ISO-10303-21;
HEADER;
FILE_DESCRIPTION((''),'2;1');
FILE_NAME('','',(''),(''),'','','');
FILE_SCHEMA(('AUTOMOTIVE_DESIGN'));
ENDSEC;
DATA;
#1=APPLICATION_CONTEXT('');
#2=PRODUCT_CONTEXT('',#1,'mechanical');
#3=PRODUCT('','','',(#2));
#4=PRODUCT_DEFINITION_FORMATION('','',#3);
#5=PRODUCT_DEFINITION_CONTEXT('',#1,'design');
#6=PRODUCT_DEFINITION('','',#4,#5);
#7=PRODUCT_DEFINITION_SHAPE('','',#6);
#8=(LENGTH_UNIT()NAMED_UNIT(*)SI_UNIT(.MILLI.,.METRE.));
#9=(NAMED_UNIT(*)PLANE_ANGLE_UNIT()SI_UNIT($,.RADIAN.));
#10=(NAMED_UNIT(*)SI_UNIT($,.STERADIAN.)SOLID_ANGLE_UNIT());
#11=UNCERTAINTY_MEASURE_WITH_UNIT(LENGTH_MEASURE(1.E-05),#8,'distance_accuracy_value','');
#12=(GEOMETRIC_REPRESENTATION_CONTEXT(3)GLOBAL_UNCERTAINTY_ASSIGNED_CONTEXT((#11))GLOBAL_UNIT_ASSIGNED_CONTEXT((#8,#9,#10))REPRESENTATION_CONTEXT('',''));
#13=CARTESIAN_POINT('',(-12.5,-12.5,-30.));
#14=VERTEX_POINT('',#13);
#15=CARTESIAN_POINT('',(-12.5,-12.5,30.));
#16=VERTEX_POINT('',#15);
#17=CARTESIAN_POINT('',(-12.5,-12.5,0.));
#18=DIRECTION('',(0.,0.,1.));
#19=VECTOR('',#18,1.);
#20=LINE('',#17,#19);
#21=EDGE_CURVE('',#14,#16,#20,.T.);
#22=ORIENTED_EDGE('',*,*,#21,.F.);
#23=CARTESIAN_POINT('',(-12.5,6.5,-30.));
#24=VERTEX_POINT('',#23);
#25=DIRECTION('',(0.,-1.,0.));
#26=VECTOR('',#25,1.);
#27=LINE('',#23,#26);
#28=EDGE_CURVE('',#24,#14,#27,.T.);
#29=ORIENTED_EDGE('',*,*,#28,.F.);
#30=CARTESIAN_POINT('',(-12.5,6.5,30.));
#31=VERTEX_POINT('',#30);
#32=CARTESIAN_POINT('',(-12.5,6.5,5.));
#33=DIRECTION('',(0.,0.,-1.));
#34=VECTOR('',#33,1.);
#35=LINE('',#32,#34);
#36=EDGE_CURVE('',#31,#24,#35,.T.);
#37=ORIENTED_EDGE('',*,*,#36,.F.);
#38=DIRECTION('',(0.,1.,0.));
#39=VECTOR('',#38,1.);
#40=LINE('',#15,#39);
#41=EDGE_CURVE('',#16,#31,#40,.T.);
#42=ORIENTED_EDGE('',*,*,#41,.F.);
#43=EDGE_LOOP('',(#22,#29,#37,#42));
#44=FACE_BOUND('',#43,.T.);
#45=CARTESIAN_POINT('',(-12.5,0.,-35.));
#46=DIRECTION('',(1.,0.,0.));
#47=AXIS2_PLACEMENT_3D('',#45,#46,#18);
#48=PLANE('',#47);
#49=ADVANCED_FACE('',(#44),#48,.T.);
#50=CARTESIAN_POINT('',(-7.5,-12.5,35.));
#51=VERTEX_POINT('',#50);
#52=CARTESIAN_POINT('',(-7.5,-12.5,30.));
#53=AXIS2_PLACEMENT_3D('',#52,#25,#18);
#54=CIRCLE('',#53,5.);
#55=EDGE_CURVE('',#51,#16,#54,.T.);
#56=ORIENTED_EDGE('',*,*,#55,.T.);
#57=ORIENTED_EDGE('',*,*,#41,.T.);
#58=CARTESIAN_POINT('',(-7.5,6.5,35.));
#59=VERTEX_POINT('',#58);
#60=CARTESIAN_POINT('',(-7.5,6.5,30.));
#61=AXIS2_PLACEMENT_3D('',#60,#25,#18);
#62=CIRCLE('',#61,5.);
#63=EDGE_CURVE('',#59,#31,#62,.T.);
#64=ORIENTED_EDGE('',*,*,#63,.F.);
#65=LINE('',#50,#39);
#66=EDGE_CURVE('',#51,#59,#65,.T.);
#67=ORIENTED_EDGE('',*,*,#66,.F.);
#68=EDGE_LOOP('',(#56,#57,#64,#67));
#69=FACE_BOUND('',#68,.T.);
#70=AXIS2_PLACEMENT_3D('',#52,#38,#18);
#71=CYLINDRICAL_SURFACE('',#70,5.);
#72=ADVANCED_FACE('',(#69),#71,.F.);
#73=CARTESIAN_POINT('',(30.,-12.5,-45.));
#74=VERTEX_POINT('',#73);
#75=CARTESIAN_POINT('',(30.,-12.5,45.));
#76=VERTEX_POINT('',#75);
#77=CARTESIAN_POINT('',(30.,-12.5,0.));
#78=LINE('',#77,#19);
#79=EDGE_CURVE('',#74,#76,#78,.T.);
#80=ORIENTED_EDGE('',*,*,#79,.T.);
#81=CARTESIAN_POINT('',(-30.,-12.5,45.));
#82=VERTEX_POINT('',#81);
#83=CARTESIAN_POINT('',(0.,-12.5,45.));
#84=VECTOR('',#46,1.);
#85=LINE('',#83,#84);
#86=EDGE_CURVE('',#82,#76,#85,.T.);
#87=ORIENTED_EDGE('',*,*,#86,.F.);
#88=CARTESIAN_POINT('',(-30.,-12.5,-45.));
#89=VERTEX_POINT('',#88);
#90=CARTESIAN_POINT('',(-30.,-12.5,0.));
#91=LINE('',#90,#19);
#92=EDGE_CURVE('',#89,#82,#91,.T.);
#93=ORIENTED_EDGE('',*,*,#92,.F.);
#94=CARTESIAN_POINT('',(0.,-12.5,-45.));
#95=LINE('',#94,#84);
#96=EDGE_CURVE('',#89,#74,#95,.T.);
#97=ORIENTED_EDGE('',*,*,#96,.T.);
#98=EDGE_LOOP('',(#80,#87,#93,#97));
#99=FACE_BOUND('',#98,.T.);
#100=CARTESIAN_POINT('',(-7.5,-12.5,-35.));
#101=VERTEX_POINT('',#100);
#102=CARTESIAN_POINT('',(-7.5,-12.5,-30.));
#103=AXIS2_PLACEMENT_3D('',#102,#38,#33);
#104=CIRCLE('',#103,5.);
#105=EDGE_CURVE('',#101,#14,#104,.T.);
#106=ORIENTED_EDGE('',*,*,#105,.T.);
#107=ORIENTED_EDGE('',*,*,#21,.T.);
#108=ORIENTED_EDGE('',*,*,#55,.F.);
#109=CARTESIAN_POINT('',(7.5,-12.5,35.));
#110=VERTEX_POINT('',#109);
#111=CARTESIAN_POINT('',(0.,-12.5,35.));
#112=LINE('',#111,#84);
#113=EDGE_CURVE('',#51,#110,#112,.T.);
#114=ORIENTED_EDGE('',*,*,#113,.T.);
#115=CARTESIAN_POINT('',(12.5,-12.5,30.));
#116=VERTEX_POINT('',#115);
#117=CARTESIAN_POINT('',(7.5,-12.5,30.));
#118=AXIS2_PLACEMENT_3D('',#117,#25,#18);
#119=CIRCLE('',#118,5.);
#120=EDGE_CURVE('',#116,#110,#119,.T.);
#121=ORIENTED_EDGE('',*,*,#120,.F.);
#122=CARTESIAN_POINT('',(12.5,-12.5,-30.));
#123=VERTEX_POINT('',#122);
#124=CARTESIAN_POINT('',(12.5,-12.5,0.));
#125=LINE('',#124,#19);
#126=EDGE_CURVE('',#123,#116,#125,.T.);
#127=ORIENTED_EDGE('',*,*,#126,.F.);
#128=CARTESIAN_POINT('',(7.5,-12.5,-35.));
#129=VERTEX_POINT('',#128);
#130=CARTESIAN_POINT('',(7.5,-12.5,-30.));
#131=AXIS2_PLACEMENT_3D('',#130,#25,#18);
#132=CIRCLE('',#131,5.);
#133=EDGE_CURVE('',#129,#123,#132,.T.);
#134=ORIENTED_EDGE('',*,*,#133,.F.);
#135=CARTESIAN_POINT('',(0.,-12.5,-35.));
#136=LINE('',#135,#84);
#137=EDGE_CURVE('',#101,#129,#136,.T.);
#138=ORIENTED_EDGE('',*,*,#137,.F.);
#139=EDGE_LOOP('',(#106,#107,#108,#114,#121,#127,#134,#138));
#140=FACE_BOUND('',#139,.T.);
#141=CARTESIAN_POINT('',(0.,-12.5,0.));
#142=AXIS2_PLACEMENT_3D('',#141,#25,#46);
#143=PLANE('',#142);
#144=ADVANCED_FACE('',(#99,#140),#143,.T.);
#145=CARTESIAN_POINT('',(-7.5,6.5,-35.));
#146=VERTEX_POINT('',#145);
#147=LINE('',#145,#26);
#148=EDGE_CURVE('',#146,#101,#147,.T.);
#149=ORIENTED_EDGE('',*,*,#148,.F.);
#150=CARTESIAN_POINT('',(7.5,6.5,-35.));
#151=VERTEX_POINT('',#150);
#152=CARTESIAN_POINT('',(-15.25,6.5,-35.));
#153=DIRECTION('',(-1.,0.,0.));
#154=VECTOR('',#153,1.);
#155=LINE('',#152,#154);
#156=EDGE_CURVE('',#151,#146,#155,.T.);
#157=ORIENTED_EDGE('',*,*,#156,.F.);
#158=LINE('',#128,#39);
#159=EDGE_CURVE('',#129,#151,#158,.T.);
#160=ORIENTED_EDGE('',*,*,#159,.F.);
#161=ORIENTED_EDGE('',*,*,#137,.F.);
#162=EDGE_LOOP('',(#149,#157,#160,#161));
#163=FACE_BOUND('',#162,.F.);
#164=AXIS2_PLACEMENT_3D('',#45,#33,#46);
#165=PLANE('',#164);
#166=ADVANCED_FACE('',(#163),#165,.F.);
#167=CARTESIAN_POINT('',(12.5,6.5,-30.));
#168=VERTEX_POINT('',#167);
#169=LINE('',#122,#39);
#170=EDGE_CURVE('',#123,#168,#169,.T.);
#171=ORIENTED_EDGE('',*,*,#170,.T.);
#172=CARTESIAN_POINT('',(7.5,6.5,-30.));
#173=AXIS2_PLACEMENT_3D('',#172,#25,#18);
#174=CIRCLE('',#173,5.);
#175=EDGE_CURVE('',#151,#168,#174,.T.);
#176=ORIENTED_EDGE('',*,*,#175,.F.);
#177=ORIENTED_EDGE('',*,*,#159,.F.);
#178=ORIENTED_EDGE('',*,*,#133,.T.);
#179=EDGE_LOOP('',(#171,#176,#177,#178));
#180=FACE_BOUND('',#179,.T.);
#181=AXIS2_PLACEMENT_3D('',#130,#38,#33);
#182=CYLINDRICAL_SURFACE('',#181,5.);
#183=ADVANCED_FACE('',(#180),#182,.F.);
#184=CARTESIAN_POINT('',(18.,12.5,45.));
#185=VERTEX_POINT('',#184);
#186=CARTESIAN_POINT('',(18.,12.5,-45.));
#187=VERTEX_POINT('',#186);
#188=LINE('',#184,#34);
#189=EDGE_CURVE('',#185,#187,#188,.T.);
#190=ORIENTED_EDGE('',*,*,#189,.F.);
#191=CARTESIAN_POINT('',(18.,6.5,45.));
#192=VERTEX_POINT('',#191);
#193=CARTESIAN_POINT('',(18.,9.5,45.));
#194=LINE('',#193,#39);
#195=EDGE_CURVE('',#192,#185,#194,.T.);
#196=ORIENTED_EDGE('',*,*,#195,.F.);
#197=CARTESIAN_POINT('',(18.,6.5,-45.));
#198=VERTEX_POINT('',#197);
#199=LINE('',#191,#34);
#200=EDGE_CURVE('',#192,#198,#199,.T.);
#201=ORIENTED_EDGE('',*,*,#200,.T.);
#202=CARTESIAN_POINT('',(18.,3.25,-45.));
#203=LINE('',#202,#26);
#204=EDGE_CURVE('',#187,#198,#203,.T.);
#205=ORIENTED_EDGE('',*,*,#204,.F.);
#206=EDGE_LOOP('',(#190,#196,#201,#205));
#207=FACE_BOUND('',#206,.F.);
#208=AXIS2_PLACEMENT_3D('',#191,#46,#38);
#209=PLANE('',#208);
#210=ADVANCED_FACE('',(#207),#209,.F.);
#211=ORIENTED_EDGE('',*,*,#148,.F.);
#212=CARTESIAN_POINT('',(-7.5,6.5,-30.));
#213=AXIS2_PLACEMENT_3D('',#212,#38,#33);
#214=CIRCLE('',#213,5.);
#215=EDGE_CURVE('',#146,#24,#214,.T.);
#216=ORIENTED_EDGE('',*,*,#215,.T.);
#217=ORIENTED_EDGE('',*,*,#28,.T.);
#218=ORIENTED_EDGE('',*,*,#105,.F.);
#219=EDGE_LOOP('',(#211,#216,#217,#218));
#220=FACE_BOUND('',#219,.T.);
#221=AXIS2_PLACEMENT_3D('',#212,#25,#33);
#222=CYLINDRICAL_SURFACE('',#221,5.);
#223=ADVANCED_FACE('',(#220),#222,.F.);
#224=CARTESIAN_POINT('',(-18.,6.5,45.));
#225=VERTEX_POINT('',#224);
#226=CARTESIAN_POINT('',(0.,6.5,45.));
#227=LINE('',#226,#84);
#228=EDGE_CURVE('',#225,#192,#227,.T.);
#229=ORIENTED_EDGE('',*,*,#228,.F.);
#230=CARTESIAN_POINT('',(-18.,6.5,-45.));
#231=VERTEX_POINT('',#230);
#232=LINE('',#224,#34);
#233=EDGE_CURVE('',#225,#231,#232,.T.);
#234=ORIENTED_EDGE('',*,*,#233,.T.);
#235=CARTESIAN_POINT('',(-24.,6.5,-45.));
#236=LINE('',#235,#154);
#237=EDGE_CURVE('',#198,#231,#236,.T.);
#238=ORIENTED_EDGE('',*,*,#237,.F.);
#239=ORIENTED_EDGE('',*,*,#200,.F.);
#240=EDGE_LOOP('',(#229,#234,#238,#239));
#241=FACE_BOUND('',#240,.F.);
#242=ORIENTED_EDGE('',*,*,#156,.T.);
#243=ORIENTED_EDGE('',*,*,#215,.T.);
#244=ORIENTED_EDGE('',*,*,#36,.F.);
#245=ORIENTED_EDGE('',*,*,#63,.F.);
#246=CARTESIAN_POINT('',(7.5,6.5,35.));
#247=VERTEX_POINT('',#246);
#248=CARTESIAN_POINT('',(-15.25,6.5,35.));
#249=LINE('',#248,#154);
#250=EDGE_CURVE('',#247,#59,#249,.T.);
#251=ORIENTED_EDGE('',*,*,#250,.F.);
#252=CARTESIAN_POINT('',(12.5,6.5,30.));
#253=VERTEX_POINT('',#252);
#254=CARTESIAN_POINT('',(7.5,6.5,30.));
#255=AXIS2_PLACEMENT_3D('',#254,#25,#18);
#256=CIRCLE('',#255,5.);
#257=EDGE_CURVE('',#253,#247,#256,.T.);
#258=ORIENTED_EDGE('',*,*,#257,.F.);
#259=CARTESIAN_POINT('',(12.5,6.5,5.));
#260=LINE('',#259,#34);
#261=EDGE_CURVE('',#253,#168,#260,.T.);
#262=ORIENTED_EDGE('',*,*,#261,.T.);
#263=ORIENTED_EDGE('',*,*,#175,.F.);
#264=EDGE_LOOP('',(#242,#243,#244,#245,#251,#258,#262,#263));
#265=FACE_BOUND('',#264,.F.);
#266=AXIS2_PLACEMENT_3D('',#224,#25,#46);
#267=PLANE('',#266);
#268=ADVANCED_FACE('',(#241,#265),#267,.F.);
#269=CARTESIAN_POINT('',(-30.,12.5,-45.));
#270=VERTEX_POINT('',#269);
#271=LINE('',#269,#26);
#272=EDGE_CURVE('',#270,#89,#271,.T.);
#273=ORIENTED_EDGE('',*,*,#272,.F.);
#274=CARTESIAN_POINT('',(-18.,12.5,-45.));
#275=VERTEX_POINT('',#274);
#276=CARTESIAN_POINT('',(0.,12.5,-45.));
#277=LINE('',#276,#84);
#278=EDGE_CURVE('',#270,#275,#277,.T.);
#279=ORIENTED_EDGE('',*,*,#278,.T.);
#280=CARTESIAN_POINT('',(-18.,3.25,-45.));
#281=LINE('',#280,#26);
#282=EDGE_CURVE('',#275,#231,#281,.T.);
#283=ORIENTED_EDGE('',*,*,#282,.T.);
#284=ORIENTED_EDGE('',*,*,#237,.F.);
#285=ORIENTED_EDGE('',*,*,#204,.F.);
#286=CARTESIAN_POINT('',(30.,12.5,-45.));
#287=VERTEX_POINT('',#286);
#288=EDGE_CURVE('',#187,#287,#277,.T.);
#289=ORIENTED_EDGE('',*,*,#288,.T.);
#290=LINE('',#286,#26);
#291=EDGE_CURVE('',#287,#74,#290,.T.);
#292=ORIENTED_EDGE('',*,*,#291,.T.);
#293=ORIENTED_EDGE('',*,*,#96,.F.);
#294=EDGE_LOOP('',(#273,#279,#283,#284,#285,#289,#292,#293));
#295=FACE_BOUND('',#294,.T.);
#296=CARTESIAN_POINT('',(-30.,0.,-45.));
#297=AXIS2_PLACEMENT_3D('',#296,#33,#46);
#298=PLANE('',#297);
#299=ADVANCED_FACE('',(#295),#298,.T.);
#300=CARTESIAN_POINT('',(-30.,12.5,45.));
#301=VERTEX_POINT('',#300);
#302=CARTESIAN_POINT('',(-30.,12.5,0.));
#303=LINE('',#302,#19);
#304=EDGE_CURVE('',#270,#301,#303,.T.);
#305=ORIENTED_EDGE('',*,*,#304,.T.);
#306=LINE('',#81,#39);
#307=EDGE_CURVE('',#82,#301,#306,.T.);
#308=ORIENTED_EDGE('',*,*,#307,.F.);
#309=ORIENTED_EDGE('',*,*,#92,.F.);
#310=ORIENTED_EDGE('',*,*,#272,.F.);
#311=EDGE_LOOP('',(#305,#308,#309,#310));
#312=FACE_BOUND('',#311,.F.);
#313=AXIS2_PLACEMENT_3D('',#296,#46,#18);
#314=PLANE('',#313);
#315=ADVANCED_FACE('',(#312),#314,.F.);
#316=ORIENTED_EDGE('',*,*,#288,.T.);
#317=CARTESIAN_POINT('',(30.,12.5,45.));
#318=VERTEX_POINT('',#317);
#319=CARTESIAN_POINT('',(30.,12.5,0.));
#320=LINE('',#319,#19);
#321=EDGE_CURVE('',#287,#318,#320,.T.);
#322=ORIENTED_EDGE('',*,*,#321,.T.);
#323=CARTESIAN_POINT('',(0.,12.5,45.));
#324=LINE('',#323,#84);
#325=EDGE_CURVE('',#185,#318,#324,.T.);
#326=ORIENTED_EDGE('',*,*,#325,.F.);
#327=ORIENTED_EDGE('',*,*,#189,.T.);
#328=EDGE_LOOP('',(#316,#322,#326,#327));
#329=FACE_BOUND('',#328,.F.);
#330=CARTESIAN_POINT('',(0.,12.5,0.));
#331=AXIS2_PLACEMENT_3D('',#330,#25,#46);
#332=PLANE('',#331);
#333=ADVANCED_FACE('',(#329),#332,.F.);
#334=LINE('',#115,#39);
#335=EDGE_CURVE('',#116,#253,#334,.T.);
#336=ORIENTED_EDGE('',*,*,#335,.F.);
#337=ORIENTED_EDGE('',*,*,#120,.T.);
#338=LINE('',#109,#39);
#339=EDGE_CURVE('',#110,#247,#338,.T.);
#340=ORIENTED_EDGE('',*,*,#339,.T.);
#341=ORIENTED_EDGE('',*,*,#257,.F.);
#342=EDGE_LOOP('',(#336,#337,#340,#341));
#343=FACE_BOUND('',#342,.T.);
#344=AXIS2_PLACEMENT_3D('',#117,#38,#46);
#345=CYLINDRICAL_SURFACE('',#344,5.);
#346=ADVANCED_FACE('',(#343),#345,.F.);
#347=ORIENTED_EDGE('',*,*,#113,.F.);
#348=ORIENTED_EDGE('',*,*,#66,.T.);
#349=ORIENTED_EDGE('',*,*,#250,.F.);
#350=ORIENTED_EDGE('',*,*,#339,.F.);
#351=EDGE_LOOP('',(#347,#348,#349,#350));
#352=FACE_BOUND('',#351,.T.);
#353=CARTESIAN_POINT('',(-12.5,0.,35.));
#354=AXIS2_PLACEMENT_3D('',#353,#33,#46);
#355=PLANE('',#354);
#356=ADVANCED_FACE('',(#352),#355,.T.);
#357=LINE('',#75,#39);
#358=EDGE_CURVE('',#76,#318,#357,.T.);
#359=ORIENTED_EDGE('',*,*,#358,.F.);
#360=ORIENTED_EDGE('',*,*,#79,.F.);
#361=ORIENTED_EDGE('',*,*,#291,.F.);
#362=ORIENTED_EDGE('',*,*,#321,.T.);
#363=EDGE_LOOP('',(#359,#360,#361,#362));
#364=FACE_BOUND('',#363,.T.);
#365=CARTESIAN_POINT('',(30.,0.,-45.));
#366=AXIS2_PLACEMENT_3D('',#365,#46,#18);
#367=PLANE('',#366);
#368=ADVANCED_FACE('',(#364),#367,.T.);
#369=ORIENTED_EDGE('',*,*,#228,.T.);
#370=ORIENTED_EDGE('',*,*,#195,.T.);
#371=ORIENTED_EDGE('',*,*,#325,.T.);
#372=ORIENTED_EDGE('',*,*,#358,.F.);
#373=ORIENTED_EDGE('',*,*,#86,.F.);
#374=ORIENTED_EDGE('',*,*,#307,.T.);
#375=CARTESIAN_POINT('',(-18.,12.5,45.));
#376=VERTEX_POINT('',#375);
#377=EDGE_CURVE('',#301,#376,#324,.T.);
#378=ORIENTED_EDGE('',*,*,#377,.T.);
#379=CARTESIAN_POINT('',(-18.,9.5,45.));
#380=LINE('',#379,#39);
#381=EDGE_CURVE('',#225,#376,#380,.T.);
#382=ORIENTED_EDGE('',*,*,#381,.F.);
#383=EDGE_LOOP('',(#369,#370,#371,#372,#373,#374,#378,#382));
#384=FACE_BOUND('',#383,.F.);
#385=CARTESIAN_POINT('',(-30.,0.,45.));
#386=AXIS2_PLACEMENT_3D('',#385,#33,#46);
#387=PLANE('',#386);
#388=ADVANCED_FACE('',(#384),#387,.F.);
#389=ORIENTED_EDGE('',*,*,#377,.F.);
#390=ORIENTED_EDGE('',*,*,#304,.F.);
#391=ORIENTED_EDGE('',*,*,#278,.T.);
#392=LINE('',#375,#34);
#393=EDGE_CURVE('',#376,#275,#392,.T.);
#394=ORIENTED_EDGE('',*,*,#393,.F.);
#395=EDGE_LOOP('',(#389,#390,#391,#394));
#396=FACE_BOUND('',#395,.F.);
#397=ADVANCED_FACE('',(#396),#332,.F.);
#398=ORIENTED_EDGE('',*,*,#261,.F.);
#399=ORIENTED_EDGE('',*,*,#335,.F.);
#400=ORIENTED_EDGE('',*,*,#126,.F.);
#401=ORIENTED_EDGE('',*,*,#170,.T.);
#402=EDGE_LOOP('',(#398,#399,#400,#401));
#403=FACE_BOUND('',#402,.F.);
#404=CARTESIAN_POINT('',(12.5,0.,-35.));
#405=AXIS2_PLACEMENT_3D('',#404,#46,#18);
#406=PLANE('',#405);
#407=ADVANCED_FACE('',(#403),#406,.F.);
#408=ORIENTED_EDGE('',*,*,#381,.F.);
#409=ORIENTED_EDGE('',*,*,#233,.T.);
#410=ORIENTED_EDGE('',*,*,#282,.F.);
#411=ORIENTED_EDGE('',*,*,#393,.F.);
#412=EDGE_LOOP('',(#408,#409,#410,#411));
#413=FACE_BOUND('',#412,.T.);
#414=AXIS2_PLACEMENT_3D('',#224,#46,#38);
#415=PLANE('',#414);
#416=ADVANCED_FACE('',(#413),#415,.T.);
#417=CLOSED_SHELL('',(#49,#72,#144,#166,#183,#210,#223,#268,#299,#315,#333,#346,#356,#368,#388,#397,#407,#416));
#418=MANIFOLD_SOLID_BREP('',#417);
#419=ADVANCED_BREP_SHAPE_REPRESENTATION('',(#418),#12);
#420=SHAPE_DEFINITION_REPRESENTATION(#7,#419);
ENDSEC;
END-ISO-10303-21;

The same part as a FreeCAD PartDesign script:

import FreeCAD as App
import Part
import Sketcher


def edges_at(feature, points):
    """Names of the edges that pass closest to the given points."""
    edges = feature.Shape.Edges
    near = lambda p: min(range(len(edges)), key=lambda i: edges[i].distToShape(Part.Vertex(*p))[0])
    return sorted({f"Edge{near(p) + 1}" for p in points})


def add_polygon(sketch, points):
    """Adds a closed chain of lines whose ends are joined by coincident constraints."""
    first, n = sketch.GeometryCount, len(points)
    for a, b in zip(points, points[1:] + points[:1]):
        sketch.addGeometry(Part.LineSegment(App.Vector(*a, 0), App.Vector(*b, 0)), False)
    for i in range(n):
        sketch.addConstraint(Sketcher.Constraint("Coincident", first + i, 2, first + (i + 1) % n, 1))

doc = App.newDocument("Part")
body = doc.addObject("PartDesign::Body", "Body")

sketch1 = body.newObject("Sketcher::SketchObject", "Sketch")
sketch1.AttachmentSupport = (doc.getObject("XZ_Plane"), [""])
sketch1.MapMode = "FlatFace"
add_polygon(sketch1, [(-30, 45), (-30, -45), (30, -45), (30, 45)])
add_polygon(sketch1, [(12, -35), (-12, -35), (-12, 35), (12, 35)])
sketch1.addConstraint(Sketcher.Constraint("Vertical", 0))
sketch1.addConstraint(Sketcher.Constraint("Horizontal", 1))
sketch1.addConstraint(Sketcher.Constraint("Vertical", 2))
sketch1.addConstraint(Sketcher.Constraint("Horizontal", 3))
sketch1.addConstraint(Sketcher.Constraint("Horizontal", 4))
sketch1.addConstraint(Sketcher.Constraint("Vertical", 5))
sketch1.addConstraint(Sketcher.Constraint("Horizontal", 6))
sketch1.addConstraint(Sketcher.Constraint("Vertical", 7))
sketch1.addConstraint(Sketcher.Constraint("Symmetric", 0, 2, 2, 2, -1, 1))
sketch1.addConstraint(Sketcher.Constraint("Symmetric", 4, 2, 6, 2, -1, 1))
sketch1.addConstraint(Sketcher.Constraint("DistanceX", 1, 1, 1, 2, 60.0))
sketch1.addConstraint(Sketcher.Constraint("DistanceX", 4, 2, 4, 1, 25.0))
sketch1.addConstraint(Sketcher.Constraint("DistanceY", 0, 2, 0, 1, 90.0))
sketch1.addConstraint(Sketcher.Constraint("DistanceY", 5, 1, 5, 2, 70.0))
pad1 = body.newObject("PartDesign::Pad", "Pad")
pad1.Profile = sketch1
pad1.Length = 25
pad1.Midplane = True

sketch2 = body.newObject("Sketcher::SketchObject", "Sketch001")
sketch2.AttachmentSupport = (doc.getObject("XY_Plane"), [""])
sketch2.MapMode = "FlatFace"
sketch2.AttachmentOffset = App.Placement(App.Vector(0, 0, 45), App.Rotation())
add_polygon(sketch2, [(-18, 12), (-18, 6), (18, 6), (18, 12)])
sketch2.addConstraint(Sketcher.Constraint("Vertical", 0))
sketch2.addConstraint(Sketcher.Constraint("Horizontal", 1))
sketch2.addConstraint(Sketcher.Constraint("Vertical", 2))
sketch2.addConstraint(Sketcher.Constraint("Horizontal", 3))
sketch2.addConstraint(Sketcher.Constraint("DistanceX", 1, 1, 1, 2, 36.0))
sketch2.addConstraint(Sketcher.Constraint("DistanceY", 0, 2, 0, 1, 6.0))
sketch2.addConstraint(Sketcher.Constraint("DistanceX", 0, 2, -1, 1, 18.0))
sketch2.addConstraint(Sketcher.Constraint("DistanceY", -1, 1, 0, 2, 6.5))
pocket1 = body.newObject("PartDesign::Pocket", "Pocket")
pocket1.Profile = sketch2
pocket1.Type = "ThroughAll"
doc.recompute()

fillet = body.newObject("PartDesign::Fillet", "Fillet")
fillet.Base = (pocket1, edges_at(pocket1, [
    (-12.5, -3, 35),
    (12.5, -3, 35),
    (12.5, -3, -35),
    (-12.5, -3, -35),
]))
fillet.Radius = 5

doc.recompute()
